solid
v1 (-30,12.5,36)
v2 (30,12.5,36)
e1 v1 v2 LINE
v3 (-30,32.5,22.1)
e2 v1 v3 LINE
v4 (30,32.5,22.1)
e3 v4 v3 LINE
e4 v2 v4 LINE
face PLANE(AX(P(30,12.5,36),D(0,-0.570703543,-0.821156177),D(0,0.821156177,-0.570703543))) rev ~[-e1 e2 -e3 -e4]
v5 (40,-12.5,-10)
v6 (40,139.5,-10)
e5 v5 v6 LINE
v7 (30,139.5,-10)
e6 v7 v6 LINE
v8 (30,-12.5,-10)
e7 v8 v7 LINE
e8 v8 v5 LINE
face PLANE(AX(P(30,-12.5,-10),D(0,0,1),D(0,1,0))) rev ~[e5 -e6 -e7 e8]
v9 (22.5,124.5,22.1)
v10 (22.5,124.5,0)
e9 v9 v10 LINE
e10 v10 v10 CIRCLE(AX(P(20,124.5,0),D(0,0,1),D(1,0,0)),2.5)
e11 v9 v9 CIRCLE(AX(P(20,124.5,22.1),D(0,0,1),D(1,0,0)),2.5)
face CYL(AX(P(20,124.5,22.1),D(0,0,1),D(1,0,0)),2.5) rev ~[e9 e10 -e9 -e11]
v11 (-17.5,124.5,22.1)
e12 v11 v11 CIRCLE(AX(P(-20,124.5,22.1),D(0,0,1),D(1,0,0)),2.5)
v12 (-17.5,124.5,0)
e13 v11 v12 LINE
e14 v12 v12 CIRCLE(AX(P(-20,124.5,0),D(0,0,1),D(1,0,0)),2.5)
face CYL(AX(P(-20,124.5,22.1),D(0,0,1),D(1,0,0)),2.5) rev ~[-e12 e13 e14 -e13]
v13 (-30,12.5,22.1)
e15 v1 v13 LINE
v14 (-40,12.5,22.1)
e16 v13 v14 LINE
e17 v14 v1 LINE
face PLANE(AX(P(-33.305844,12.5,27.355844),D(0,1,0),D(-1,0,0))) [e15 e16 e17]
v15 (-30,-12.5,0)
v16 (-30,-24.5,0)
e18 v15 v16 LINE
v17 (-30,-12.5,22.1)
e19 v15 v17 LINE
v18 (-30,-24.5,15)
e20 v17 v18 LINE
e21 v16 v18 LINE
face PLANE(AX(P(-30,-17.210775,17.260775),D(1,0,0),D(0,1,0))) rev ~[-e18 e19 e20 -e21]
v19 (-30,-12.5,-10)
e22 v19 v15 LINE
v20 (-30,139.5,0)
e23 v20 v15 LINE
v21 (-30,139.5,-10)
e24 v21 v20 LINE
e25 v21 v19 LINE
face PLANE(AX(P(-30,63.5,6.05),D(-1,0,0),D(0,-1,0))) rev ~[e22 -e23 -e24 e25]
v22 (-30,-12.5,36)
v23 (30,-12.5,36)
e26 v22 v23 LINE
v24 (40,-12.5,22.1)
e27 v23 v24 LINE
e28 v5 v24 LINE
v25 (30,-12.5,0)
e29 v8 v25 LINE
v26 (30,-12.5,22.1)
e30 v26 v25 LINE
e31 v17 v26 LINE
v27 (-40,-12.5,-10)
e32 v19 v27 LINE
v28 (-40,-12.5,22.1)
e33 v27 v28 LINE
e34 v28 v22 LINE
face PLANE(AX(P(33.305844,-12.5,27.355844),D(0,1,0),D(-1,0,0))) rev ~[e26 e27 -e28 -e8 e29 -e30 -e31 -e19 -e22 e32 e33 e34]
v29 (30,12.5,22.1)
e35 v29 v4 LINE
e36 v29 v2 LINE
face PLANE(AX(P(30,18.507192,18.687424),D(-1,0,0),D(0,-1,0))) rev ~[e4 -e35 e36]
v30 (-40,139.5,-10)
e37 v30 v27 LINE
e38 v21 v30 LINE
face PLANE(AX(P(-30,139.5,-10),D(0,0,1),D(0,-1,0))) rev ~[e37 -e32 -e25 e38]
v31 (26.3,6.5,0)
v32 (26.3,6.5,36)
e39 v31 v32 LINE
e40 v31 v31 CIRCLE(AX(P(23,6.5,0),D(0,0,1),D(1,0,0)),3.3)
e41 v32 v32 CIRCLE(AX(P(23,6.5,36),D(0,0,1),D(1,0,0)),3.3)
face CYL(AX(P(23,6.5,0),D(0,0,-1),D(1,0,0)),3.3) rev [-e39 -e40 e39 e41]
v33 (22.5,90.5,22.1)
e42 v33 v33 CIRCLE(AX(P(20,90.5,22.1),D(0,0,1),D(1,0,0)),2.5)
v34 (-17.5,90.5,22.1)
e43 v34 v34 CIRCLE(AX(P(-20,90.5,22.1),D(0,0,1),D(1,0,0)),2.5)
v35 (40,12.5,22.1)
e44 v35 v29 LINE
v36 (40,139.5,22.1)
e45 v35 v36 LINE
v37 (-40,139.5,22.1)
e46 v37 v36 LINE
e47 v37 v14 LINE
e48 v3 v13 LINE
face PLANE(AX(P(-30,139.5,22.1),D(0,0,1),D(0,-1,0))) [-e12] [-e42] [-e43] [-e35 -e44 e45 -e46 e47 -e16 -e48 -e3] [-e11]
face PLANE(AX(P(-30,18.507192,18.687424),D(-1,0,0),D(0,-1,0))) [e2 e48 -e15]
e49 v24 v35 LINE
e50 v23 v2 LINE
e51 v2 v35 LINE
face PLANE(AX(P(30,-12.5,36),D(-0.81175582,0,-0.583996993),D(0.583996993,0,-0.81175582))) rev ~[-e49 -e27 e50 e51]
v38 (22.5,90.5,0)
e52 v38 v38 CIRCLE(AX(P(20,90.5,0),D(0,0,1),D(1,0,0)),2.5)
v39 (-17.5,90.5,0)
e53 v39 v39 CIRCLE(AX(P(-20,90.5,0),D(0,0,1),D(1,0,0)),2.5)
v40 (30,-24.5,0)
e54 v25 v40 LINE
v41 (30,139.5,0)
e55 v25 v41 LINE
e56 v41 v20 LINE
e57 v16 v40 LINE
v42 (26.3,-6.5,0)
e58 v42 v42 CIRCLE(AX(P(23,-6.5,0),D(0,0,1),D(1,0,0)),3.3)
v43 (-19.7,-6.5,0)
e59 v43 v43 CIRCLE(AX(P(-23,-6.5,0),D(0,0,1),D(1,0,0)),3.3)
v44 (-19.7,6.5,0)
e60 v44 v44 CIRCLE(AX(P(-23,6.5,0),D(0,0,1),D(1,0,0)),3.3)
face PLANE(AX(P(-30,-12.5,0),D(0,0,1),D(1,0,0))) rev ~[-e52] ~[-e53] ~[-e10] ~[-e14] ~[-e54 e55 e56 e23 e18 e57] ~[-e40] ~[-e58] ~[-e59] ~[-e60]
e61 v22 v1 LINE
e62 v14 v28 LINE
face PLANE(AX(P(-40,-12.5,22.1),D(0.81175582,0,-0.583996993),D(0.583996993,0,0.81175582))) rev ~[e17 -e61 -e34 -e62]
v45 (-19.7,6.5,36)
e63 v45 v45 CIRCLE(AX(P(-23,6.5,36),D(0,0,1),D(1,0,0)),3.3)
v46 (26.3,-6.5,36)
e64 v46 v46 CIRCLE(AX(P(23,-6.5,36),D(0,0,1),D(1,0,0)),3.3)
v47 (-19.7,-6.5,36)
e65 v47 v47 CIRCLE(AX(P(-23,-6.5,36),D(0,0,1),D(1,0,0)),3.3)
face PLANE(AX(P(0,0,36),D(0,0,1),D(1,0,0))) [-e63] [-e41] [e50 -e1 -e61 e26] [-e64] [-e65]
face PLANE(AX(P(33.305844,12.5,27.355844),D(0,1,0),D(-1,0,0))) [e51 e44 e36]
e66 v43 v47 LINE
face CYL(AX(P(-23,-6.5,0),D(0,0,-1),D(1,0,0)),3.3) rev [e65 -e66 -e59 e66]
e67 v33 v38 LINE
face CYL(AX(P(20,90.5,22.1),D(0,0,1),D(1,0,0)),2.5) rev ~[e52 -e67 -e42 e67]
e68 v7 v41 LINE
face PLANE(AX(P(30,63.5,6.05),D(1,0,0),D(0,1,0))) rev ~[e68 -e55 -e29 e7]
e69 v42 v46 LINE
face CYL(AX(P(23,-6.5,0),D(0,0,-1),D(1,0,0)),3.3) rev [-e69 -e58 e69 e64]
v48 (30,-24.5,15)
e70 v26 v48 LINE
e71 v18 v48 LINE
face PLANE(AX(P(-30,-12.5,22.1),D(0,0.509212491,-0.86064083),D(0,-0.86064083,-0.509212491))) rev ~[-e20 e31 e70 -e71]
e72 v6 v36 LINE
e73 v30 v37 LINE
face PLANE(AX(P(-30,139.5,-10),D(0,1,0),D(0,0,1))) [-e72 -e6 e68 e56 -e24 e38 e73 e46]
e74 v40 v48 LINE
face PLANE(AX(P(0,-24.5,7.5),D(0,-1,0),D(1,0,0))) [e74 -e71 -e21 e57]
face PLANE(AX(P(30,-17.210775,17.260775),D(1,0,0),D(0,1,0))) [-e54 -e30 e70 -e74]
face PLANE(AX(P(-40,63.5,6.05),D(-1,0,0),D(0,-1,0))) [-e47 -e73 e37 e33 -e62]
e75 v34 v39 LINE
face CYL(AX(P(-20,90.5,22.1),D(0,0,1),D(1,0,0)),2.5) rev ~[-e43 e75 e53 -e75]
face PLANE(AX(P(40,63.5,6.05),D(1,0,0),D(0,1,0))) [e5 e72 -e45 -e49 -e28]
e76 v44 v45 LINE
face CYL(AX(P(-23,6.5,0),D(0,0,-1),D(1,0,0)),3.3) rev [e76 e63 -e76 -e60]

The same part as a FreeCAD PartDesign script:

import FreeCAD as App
import Part
import Sketcher
from FreeCAD import Vector
Q = App.Units.Quantity

doc = App.newDocument("Part")
params = doc.addObject("Spreadsheet::Sheet", "Params")
for row, (alias, value) in enumerate([
    ("sketch1_diameter", "6.6 mm"),
    ("sketch1_width", "60 mm"),
    ("sketch1_height", "25 mm"),
    ("pad1_length", "36 mm"),
    ("sketch2_width", "60 mm"),
    ("sketch2_height", "22.1 mm"),
    ("pad2_length", "127 mm"),
    ("sketch3_diameter", "5 mm"),
    ("sketch4_height", "36 mm"),
    ("pad3_length", "60 mm"),
    ("sketch5_width", "152 mm"),
    ("sketch5_height", "32.1 mm"),
    ("pad4_length", "10 mm"),
    ("sketch6_width", "152 mm"),
    ("sketch6_height", "32.1 mm"),
    ("pad5_length", "10 mm"),
    ("sketch7_width", "10 mm"),
    ("sketch7_height", "13.9 mm"),
    ("pad6_length", "25 mm"),
    ("sketch8_width", "60 mm"),
    ("sketch8_height", "15 mm"),
    ("pad7_length", "12 mm"),
    ("sketch9_width", "12 mm"),
    ("sketch9_height", "7.1 mm"),
    ("pad8_length", "60 mm"),
], start=1):
    params.set(f"A{row}", alias)
    params.set(f"B{row}", "=" + value)
    params.setAlias(f"B{row}", alias)

body = doc.addObject("PartDesign::Body", "Body")

# Sketch on XY plane
sketch1 = doc.addObject("Sketcher::SketchObject", "Sketch")
body.addObject(sketch1)
sketch1.AttachmentSupport = (doc.XY_Plane, [""])
sketch1.MapMode = "FlatFace"
sketch1.addGeometry([
    Part.LineSegment(Vector(-30, 12.5, 0), Vector(-30, -12.5, 0)),  # 0
    Part.LineSegment(Vector(-30, -12.5, 0), Vector(30, -12.5, 0)),  # 1
    Part.LineSegment(Vector(30, -12.5, 0), Vector(30, 12.5, 0)),  # 2
    Part.LineSegment(Vector(30, 12.5, 0), Vector(-30, 12.5, 0)),  # 3
    Part.Circle(Vector(-23, -6.5, 0), Vector(0, 0, 1), 3.3),  # 4
    Part.Circle(Vector(23, -6.5, 0), Vector(0, 0, 1), 3.3),  # 5
    Part.Circle(Vector(-23, 6.5, 0), Vector(0, 0, 1), 3.3),  # 6
    Part.Circle(Vector(23, 6.5, 0), Vector(0, 0, 1), 3.3),  # 7
], False)
sketch1.addConstraint([
    Sketcher.Constraint("Coincident", 0, 2, 1, 1),
    Sketcher.Constraint("Coincident", 1, 2, 2, 1),
    Sketcher.Constraint("Coincident", 2, 2, 3, 1),
    Sketcher.Constraint("Coincident", 3, 2, 0, 1),
    Sketcher.Constraint("Vertical", 0),
    Sketcher.Constraint("Horizontal", 1),
    Sketcher.Constraint("Vertical", 2),
    Sketcher.Constraint("Horizontal", 3),
    Sketcher.Constraint("Equal", 4, 5),
    Sketcher.Constraint("Equal", 5, 6),
    Sketcher.Constraint("Equal", 6, 7),
    Sketcher.Constraint("Symmetric", 5, 3, 6, 3, -1, 1),
    Sketcher.Constraint("Symmetric", 4, 3, 7, 3, -1, 1),
    Sketcher.Constraint("Symmetric", 0, 2, 2, 2, -1, 1),
    Sketcher.Constraint("Symmetric", 4, 3, 5, 3, -2),
    Sketcher.Constraint("Diameter", 4, Q("6.6 mm")),
    Sketcher.Constraint("DistanceX", 1, 1, 1, 2, Q("60 mm")),
    Sketcher.Constraint("DistanceY", 0, 2, 0, 1, Q("25 mm")),
    Sketcher.Constraint("DistanceX", 4, 3, -1, 1, Q("23 mm")),
    Sketcher.Constraint("DistanceY", 4, 3, 6, 3, Q("13 mm")),
])
sketch1.setExpression("Constraints[15]", "Params.sketch1_diameter")
sketch1.setExpression("Constraints[16]", "Params.sketch1_width")
sketch1.setExpression("Constraints[17]", "Params.sketch1_height")
pad1 = doc.addObject("PartDesign::Pad", "Pad")
body.addObject(pad1)
pad1.Profile = sketch1
pad1.setExpression("Length", "Params.pad1_length")

# Sketch on XZ plane
sketch2 = doc.addObject("Sketcher::SketchObject", "Sketch001")
body.addObject(sketch2)
sketch2.AttachmentSupport = (doc.XZ_Plane, [""])
sketch2.MapMode = "FlatFace"
sketch2.AttachmentOffset = App.Placement(Vector(0, 0, -12.5), App.Rotation())
sketch2.addGeometry([
    Part.LineSegment(Vector(30, 22, 0), Vector(30, 0, 0)),
    Part.LineSegment(Vector(30, 0, 0), Vector(-30, 0, 0)),
    Part.LineSegment(Vector(-30, 0, 0), Vector(-30, 22, 0)),
    Part.LineSegment(Vector(-30, 22, 0), Vector(30, 22, 0)),
], False)
sketch2.addConstraint([
    Sketcher.Constraint("Coincident", 0, 2, 1, 1),
    Sketcher.Constraint("Coincident", 1, 2, 2, 1),
    Sketcher.Constraint("Coincident", 2, 2, 3, 1),
    Sketcher.Constraint("Coincident", 3, 2, 0, 1),
    Sketcher.Constraint("Vertical", 0),
    Sketcher.Constraint("Horizontal", 1),
    Sketcher.Constraint("Vertical", 2),
    Sketcher.Constraint("Horizontal", 3),
    Sketcher.Constraint("Symmetric", 0, 2, 1, 2, -1, 1),
    Sketcher.Constraint("DistanceX", 1, 2, 1, 1, Q("60 mm")),
    Sketcher.Constraint("DistanceY", 0, 2, 0, 1, Q("22.1 mm")),
])
sketch2.setExpression("Constraints[9]", "Params.sketch2_width")
sketch2.setExpression("Constraints[10]", "Params.sketch2_height")
pad2 = doc.addObject("PartDesign::Pad", "Pad001")
body.addObject(pad2)
pad2.Profile = sketch2
pad2.setExpression("Length", "Params.pad2_length")
pad2.Reversed = True

# Sketch on XY plane
sketch3 = doc.addObject("Sketcher::SketchObject", "Sketch002")
body.addObject(sketch3)
sketch3.AttachmentSupport = (doc.XY_Plane, [""])
sketch3.MapMode = "FlatFace"
sketch3.AttachmentOffset = App.Placement(Vector(0, 0, 22.1), App.Rotation())
sketch3.addGeometry([
    Part.Circle(Vector(-20, 124.5, 0), Vector(0, 0, 1), 2.5),
    Part.Circle(Vector(20, 124.5, 0), Vector(0, 0, 1), 2.5),
    Part.Circle(Vector(-20, 90.5, 0), Vector(0, 0, 1), 2.5),
    Part.Circle(Vector(20, 90.5, 0), Vector(0, 0, 1), 2.5),
], False)
sketch3.addConstraint([
    Sketcher.Constraint("Equal", 0, 1),
    Sketcher.Constraint("Equal", 1, 2),
    Sketcher.Constraint("Equal", 2, 3),
    Sketcher.Constraint("Symmetric", 0, 3, 1, 3, -2),
    Sketcher.Constraint("Symmetric", 2, 3, 3, 3, -2),
    Sketcher.Constraint("Vertical", 0, 3, 2, 3),
    Sketcher.Constraint("Diameter", 0, Q("5 mm")),
    Sketcher.Constraint("DistanceX", 0, 3, -1, 1, Q("20 mm")),
    Sketcher.Constraint("DistanceY", 2, 3, 0, 3, Q("34 mm")),
    Sketcher.Constraint("DistanceY", -1, 1, 0, 3, Q("124.5 mm")),
])
sketch3.setExpression("Constraints[6]", "Params.sketch3_diameter")
pocket1 = doc.addObject("PartDesign::Pocket", "Pocket")
body.addObject(pocket1)
pocket1.Profile = sketch3
pocket1.Type = "ThroughAll"

# Sketch on YZ plane
sketch4 = doc.addObject("Sketcher::SketchObject", "Sketch003")
body.addObject(sketch4)
sketch4.AttachmentSupport = (doc.YZ_Plane, [""])
sketch4.MapMode = "FlatFace"
sketch4.AttachmentOffset = App.Placement(Vector(0, 0, 30), App.Rotation())
sketch4.addGeometry([
    Part.LineSegment(Vector(32, 22, 0), Vector(12, 36, 0)),
    Part.LineSegment(Vector(12, 36, 0), Vector(12, 0, 0)),
    Part.LineSegment(Vector(12, 0, 0), Vector(32, 22, 0)),
], False)
sketch4.addConstraint([
    Sketcher.Constraint("Coincident", 0, 2, 1, 1),
    Sketcher.Constraint("Coincident", 1, 2, 2, 1),
    Sketcher.Constraint("Coincident", 2, 2, 0, 1),
    Sketcher.Constraint("Vertical", 1),
    Sketcher.Constraint("PointOnObject", 1, 2, -1),
    Sketcher.Constraint("DistanceY", 1, 2, 1, 1, Q("36 mm")),
    Sketcher.Constraint("DistanceX", 0, 2, 2, 2, Q("20 mm")),
    Sketcher.Constraint("DistanceX", -1, 1, 0, 2, Q("12.5 mm")),
    Sketcher.Constraint("DistanceY", -1, 1, 2, 2, Q("22.1 mm")),
])
sketch4.setExpression("Constraints[5]", "Params.sketch4_height")
pad3 = doc.addObject("PartDesign::Pad", "Pad002")
body.addObject(pad3)
pad3.Profile = sketch4
pad3.setExpression("Length", "Params.pad3_length")
pad3.Reversed = True

# Sketch on YZ plane
sketch5 = doc.addObject("Sketcher::SketchObject", "Sketch004")
body.addObject(sketch5)
sketch5.AttachmentSupport = (doc.YZ_Plane, [""])
sketch5.MapMode = "FlatFace"
sketch5.AttachmentOffset = App.Placement(Vector(0, 0, 30), App.Rotation())
sketch5.addGeometry([
    Part.LineSegment(Vector(-12, 22, 0), Vector(-12, -10, 0)),
    Part.LineSegment(Vector(-12, -10, 0), Vector(140, -10, 0)),
    Part.LineSegment(Vector(140, -10, 0), Vector(140, 22, 0)),
    Part.LineSegment(Vector(140, 22, 0), Vector(-12, 22, 0)),
], False)
sketch5.addConstraint([
    Sketcher.Constraint("Coincident", 0, 2, 1, 1),
    Sketcher.Constraint("Coincident", 1, 2, 2, 1),
    Sketcher.Constraint("Coincident", 2, 2, 3, 1),
    Sketcher.Constraint("Coincident", 3, 2, 0, 1),
    Sketcher.Constraint("Vertical", 0),
    Sketcher.Constraint("Horizontal", 1),
    Sketcher.Constraint("Vertical", 2),
    Sketcher.Constraint("Horizontal", 3),
    Sketcher.Constraint("DistanceX", 1, 1, 1, 2, Q("152 mm")),
    Sketcher.Constraint("DistanceY", 0, 2, 0, 1, Q("32.1 mm")),
    Sketcher.Constraint("DistanceY", 0, 2, -1, 1, Q("10 mm")),
    Sketcher.Constraint("DistanceX", 0, 2, -1, 1, Q("12.5 mm")),
])
sketch5.setExpression("Constraints[8]", "Params.sketch5_width")
sketch5.setExpression("Constraints[9]", "Params.sketch5_height")
pad4 = doc.addObject("PartDesign::Pad", "Pad003")
body.addObject(pad4)
pad4.Profile = sketch5
pad4.setExpression("Length", "Params.pad4_length")

# Sketch on YZ plane
sketch6 = doc.addObject("Sketcher::SketchObject", "Sketch005")
body.addObject(sketch6)
sketch6.AttachmentSupport = (doc.YZ_Plane, [""])
sketch6.MapMode = "FlatFace"
sketch6.AttachmentOffset = App.Placement(Vector(0, 0, -30), App.Rotation())
sketch6.addGeometry([
    Part.LineSegment(Vector(140, 22, 0), Vector(140, -10, 0)),
    Part.LineSegment(Vector(140, -10, 0), Vector(-12, -10, 0)),
    Part.LineSegment(Vector(-12, -10, 0), Vector(-12, 22, 0)),
    Part.LineSegment(Vector(-12, 22, 0), Vector(140, 22, 0)),
], False)
sketch6.addConstraint([
    Sketcher.Constraint("Coincident", 0, 2, 1, 1),
    Sketcher.Constraint("Coincident", 1, 2, 2, 1),
    Sketcher.Constraint("Coincident", 2, 2, 3, 1),
    Sketcher.Constraint("Coincident", 3, 2, 0, 1),
    Sketcher.Constraint("Vertical", 0),
    Sketcher.Constraint("Horizontal", 1),
    Sketcher.Constraint("Vertical", 2),
    Sketcher.Constraint("Horizontal", 3),
    Sketcher.Constraint("DistanceX", 1, 2, 1, 1, Q("152 mm")),
    Sketcher.Constraint("DistanceY", 0, 2, 0, 1, Q("32.1 mm")),
    Sketcher.Constraint("DistanceY", 0, 2, -1, 1, Q("10 mm")),
    Sketcher.Constraint("DistanceX", -1, 1, 0, 2, Q("139.5 mm")),
])
sketch6.setExpression("Constraints[8]", "Params.sketch6_width")
sketch6.setExpression("Constraints[9]", "Params.sketch6_height")
pad5 = doc.addObject("PartDesign::Pad", "Pad004")
body.addObject(pad5)
pad5.Profile = sketch6
pad5.setExpression("Length", "Params.pad5_length")
pad5.Reversed = True

# Sketch on XZ plane
sketch7 = doc.addObject("Sketcher::SketchObject", "Sketch006")
body.addObject(sketch7)
sketch7.AttachmentSupport = (doc.XZ_Plane, [""])
sketch7.MapMode = "FlatFace"
sketch7.AttachmentOffset = App.Placement(Vector(0, 0, 12.5), App.Rotation())
sketch7.addGeometry([
    Part.LineSegment(Vector(30, 22, 0), Vector(40, 22, 0)),  # 0
    Part.LineSegment(Vector(40, 22, 0), Vector(30, 36, 0)),  # 1
    Part.LineSegment(Vector(30, 36, 0), Vector(30, 22, 0)),  # 2
    Part.LineSegment(Vector(-30, 22, 0), Vector(-30, 36, 0)),  # 3
    Part.LineSegment(Vector(-30, 36, 0), Vector(-40, 22, 0)),  # 4
    Part.LineSegment(Vector(-40, 22, 0), Vector(-30, 22, 0)),  # 5
], False)
sketch7.addConstraint([
    Sketcher.Constraint("Coincident", 0, 2, 1, 1),
    Sketcher.Constraint("Coincident", 1, 2, 2, 1),
    Sketcher.Constraint("Coincident", 2, 2, 0, 1),
    Sketcher.Constraint("Coincident", 3, 2, 4, 1),
    Sketcher.Constraint("Coincident", 4, 2, 5, 1),
    Sketcher.Constraint("Coincident", 5, 2, 3, 1),
    Sketcher.Constraint("Horizontal", 0),
    Sketcher.Constraint("Vertical", 2),
    Sketcher.Constraint("Vertical", 3),
    Sketcher.Constraint("Horizontal", 5),
    Sketcher.Constraint("Symmetric", 1, 2, 3, 2, -2),
    Sketcher.Constraint("Symmetric", 0, 2, 4, 2, -2),
    Sketcher.Constraint("DistanceX", 0, 1, 0, 2, Q("10 mm")),
    Sketcher.Constraint("DistanceY", 2, 2, 2, 1, Q("13.9 mm")),
    Sketcher.Constraint("DistanceX", -1, 1, 0, 2, Q("40 mm")),
    Sketcher.Constraint("DistanceY", -1, 1, 1, 2, Q("36 mm")),
])
sketch7.setExpression("Constraints[12]", "Params.sketch7_width")
sketch7.setExpression("Constraints[13]", "Params.sketch7_height")
pad6 = doc.addObject("PartDesign::Pad", "Pad005")
body.addObject(pad6)
pad6.Profile = sketch7
pad6.setExpression("Length", "Params.pad6_length")
pad6.Reversed = True

# Sketch on XZ plane
sketch8 = doc.addObject("Sketcher::SketchObject", "Sketch007")
body.addObject(sketch8)
sketch8.AttachmentSupport = (doc.XZ_Plane, [""])
sketch8.MapMode = "FlatFace"
sketch8.AttachmentOffset = App.Placement(Vector(0, 0, 12.5), App.Rotation())
sketch8.addGeometry([
    Part.LineSegment(Vector(-30, 15, 0), Vector(-30, 0, 0)),
    Part.LineSegment(Vector(-30, 0, 0), Vector(30, 0, 0)),
    Part.LineSegment(Vector(30, 0, 0), Vector(30, 15, 0)),
    Part.LineSegment(Vector(30, 15, 0), Vector(-30, 15, 0)),
], False)
sketch8.addConstraint([
    Sketcher.Constraint("Coincident", 0, 2, 1, 1),
    Sketcher.Constraint("Coincident", 1, 2, 2, 1),
    Sketcher.Constraint("Coincident", 2, 2, 3, 1),
    Sketcher.Constraint("Coincident", 3, 2, 0, 1),
    Sketcher.Constraint("Vertical", 0),
    Sketcher.Constraint("Horizontal", 1),
    Sketcher.Constraint("Vertical", 2),
    Sketcher.Constraint("Horizontal", 3),
    Sketcher.Constraint("Symmetric", 0, 2, 1, 2, -1, 1),
    Sketcher.Constraint("DistanceX", 1, 1, 1, 2, Q("60 mm")),
    Sketcher.Constraint("DistanceY", 0, 2, 0, 1, Q("15 mm")),
])
sketch8.setExpression("Constraints[9]", "Params.sketch8_width")
sketch8.setExpression("Constraints[10]", "Params.sketch8_height")
pad7 = doc.addObject("PartDesign::Pad", "Pad006")
body.addObject(pad7)
pad7.Profile = sketch8
pad7.setExpression("Length", "Params.pad7_length")

# Sketch on YZ plane
sketch9 = doc.addObject("Sketcher::SketchObject", "Sketch008")
body.addObject(sketch9)
sketch9.AttachmentSupport = (doc.YZ_Plane, [""])
sketch9.MapMode = "FlatFace"
sketch9.AttachmentOffset = App.Placement(Vector(0, 0, -30), App.Rotation())
sketch9.addGeometry([
    Part.LineSegment(Vector(-12, 15, 0), Vector(-24, 15, 0)),
    Part.LineSegment(Vector(-24, 15, 0), Vector(-12, 22, 0)),
    Part.LineSegment(Vector(-12, 22, 0), Vector(-12, 15, 0)),
], False)
sketch9.addConstraint([
    Sketcher.Constraint("Coincident", 0, 2, 1, 1),
    Sketcher.Constraint("Coincident", 1, 2, 2, 1),
    Sketcher.Constraint("Coincident", 2, 2, 0, 1),
    Sketcher.Constraint("Horizontal", 0),
    Sketcher.Constraint("Vertical", 2),
    Sketcher.Constraint("DistanceX", 0, 2, 0, 1, Q("12 mm")),
    Sketcher.Constraint("DistanceY", 2, 2, 2, 1, Q("7.1 mm")),
    Sketcher.Constraint("DistanceY", -1, 1, 0, 2, Q("15 mm")),
    Sketcher.Constraint("DistanceX", 0, 2, -1, 1, Q("24.5 mm")),
])
sketch9.setExpression("Constraints[5]", "Params.sketch9_width")
sketch9.setExpression("Constraints[6]", "Params.sketch9_height")
pad8 = doc.addObject("PartDesign::Pad", "Pad007")
body.addObject(pad8)
pad8.Profile = sketch9
pad8.setExpression("Length", "Params.pad8_length")

doc.recompute()
